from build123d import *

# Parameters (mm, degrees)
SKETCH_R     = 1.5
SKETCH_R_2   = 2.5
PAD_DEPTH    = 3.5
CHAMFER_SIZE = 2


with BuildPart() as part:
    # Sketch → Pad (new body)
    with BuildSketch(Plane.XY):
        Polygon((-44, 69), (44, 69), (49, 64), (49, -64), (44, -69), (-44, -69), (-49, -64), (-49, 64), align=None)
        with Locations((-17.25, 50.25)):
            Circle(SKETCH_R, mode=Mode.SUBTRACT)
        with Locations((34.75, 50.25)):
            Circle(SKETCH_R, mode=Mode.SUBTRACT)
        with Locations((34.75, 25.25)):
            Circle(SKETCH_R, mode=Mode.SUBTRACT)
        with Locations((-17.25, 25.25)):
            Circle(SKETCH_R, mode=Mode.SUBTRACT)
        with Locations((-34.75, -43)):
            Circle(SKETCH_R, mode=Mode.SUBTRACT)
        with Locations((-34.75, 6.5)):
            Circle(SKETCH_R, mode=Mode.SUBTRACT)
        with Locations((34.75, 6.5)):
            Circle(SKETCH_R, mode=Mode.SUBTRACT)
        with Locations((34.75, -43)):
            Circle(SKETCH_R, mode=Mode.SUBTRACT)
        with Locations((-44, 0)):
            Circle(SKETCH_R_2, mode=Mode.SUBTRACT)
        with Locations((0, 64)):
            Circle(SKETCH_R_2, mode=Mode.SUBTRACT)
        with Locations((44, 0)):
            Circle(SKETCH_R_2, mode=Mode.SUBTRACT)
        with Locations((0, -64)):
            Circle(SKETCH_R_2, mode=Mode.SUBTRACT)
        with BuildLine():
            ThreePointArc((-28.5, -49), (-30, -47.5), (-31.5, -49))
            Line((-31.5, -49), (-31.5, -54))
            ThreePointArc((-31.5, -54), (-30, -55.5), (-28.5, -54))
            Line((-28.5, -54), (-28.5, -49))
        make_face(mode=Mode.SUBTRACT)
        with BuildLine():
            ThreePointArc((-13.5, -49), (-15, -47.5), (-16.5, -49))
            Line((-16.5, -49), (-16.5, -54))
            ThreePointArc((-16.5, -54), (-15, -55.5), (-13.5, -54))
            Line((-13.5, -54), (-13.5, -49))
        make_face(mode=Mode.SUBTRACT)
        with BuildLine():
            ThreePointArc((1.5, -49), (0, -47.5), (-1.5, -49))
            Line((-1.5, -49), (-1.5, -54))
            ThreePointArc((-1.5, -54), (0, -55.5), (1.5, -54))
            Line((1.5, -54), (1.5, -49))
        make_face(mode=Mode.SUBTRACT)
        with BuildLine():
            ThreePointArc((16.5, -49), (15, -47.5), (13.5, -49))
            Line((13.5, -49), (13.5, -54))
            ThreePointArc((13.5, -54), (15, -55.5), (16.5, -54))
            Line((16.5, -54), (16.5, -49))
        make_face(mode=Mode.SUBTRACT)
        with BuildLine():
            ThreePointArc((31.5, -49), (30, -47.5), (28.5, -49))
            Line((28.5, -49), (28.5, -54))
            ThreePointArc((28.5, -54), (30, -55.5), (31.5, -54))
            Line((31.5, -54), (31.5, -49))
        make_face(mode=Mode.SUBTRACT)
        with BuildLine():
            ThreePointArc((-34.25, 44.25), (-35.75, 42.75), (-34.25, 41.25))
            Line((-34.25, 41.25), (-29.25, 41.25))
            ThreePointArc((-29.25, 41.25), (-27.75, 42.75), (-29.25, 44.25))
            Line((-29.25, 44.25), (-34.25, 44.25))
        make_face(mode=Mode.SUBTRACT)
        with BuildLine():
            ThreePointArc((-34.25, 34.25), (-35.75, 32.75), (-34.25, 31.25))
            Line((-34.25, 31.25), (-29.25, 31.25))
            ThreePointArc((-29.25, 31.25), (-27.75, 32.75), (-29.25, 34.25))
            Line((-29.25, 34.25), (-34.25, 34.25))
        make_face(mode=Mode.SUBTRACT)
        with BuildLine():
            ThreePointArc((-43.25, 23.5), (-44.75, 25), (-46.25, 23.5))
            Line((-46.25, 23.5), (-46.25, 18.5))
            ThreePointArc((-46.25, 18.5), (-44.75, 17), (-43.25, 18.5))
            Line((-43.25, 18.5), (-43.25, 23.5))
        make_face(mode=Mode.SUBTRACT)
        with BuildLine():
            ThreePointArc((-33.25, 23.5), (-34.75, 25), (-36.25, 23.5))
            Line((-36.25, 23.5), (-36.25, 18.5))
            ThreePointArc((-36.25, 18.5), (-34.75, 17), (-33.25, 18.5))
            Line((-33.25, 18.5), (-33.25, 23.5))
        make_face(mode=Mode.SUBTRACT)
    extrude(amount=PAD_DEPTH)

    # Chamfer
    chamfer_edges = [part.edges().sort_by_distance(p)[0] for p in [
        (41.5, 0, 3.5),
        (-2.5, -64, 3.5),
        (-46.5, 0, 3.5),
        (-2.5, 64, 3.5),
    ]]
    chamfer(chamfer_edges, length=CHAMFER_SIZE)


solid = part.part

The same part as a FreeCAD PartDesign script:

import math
import FreeCAD as App
import Part
import Sketcher
from FreeCAD import Vector


def edges_at(feature, points):
    """Names of the edges that pass closest to the given points."""
    edges = feature.Shape.Edges
    near = lambda p: min(range(len(edges)), key=lambda i: edges[i].distToShape(Part.Vertex(*p))[0])
    return sorted({f"Edge{near(p) + 1}" for p in points})


def add_polygon(sketch, points):
    """Adds a closed chain of lines whose ends are joined by coincident constraints."""
    first, n = sketch.GeometryCount, len(points)
    for a, b in zip(points, points[1:] + points[:1]):
        sketch.addGeometry(Part.LineSegment(App.Vector(*a, 0), App.Vector(*b, 0)), False)
    for i in range(n):
        sketch.addConstraint(Sketcher.Constraint("Coincident", first + i, 2, first + (i + 1) % n, 1))

doc = App.newDocument("Part")
body = doc.addObject("PartDesign::Body", "Body")

# Sketch on XY plane
sketch1 = body.newObject("Sketcher::SketchObject", "Sketch")
sketch1.AttachmentSupport = (doc.getObject("XY_Plane"), [""])
sketch1.MapMode = "FlatFace"
add_polygon(sketch1, [(44, 69), (-44, 69), (-49, 64), (-49, -64), (-44, -69), (44, -69), (49, -64), (49, 64)])  # lines 0-7
sketch1.addGeometry(Part.LineSegment(Vector(31.5, -49, 0), Vector(31.5, -54, 0)), False)  # 8
sketch1.addGeometry(Part.ArcOfCircle(Part.Circle(Vector(30, -54, 0), Vector(0, 0, 1), 1.5), math.radians(180), math.radians(360)), False)  # 9
sketch1.addGeometry(Part.LineSegment(Vector(28.5, -54, 0), Vector(28.5, -49, 0)), False)  # 10
sketch1.addGeometry(Part.ArcOfCircle(Part.Circle(Vector(30, -49, 0), Vector(0, 0, 1), 1.5), math.radians(0), math.radians(180)), False)  # 11
sketch1.addGeometry(Part.Circle(Vector(34.8, -43, 0), Vector(0, 0, 1), 1.5), False)  # 12
sketch1.addGeometry(Part.LineSegment(Vector(16.5, -49, 0), Vector(16.5, -54, 0)), False)  # 13
sketch1.addGeometry(Part.ArcOfCircle(Part.Circle(Vector(15, -54, 0), Vector(0, 0, 1), 1.5), math.radians(180), math.radians(360)), False)  # 14
sketch1.addGeometry(Part.LineSegment(Vector(13.5, -54, 0), Vector(13.5, -49, 0)), False)  # 15
sketch1.addGeometry(Part.ArcOfCircle(Part.Circle(Vector(15, -49, 0), Vector(0, 0, 1), 1.5), math.radians(0), math.radians(180)), False)  # 16
sketch1.addGeometry(Part.Circle(Vector(0, -64, 0), Vector(0, 0, 1), 2.5), False)  # 17
sketch1.addGeometry(Part.LineSegment(Vector(1.5, -49, 0), Vector(1.5, -54, 0)), False)  # 18
sketch1.addGeometry(Part.ArcOfCircle(Part.Circle(Vector(0, -54, 0), Vector(0, 0, 1), 1.5), math.radians(180), math.radians(360)), False)  # 19
sketch1.addGeometry(Part.LineSegment(Vector(-1.5, -54, 0), Vector(-1.5, -49, 0)), False)  # 20
sketch1.addGeometry(Part.ArcOfCircle(Part.Circle(Vector(0, -49, 0), Vector(0, 0, 1), 1.5), math.radians(0), math.radians(180)), False)  # 21
sketch1.addGeometry(Part.LineSegment(Vector(-13.5, -49, 0), Vector(-13.5, -54, 0)), False)  # 22
sketch1.addGeometry(Part.ArcOfCircle(Part.Circle(Vector(-15, -54, 0), Vector(0, 0, 1), 1.5), math.radians(180), math.radians(360)), False)  # 23
sketch1.addGeometry(Part.LineSegment(Vector(-16.5, -54, 0), Vector(-16.5, -49, 0)), False)  # 24
sketch1.addGeometry(Part.ArcOfCircle(Part.Circle(Vector(-15, -49, 0), Vector(0, 0, 1), 1.5), math.radians(0), math.radians(180)), False)  # 25
sketch1.addGeometry(Part.LineSegment(Vector(-28.5, -49, 0), Vector(-28.5, -54, 0)), False)  # 26
sketch1.addGeometry(Part.ArcOfCircle(Part.Circle(Vector(-30, -54, 0), Vector(0, 0, 1), 1.5), math.radians(180), math.radians(360)), False)  # 27
sketch1.addGeometry(Part.LineSegment(Vector(-31.5, -54, 0), Vector(-31.5, -49, 0)), False)  # 28
sketch1.addGeometry(Part.ArcOfCircle(Part.Circle(Vector(-30, -49, 0), Vector(0, 0, 1), 1.5), math.radians(0), math.radians(180)), False)  # 29
sketch1.addGeometry(Part.Circle(Vector(-34.8, -43, 0), Vector(0, 0, 1), 1.5), False)  # 30
sketch1.addGeometry(Part.Circle(Vector(44, 0, 0), Vector(0, 0, 1), 2.5), False)  # 31
sketch1.addGeometry(Part.Circle(Vector(34.8, 6.5, 0), Vector(0, 0, 1), 1.5), False)  # 32
sketch1.addGeometry(Part.Circle(Vector(34.8, 25.2, 0), Vector(0, 0, 1), 1.5), False)  # 33
sketch1.addGeometry(Part.Circle(Vector(34.8, 50.2, 0), Vector(0, 0, 1), 1.5), False)  # 34
sketch1.addGeometry(Part.Circle(Vector(-17.2, 25.2, 0), Vector(0, 0, 1), 1.5), False)  # 35
sketch1.addGeometry(Part.Circle(Vector(-34.8, 6.5, 0), Vector(0, 0, 1), 1.5), False)  # 36
sketch1.addGeometry(Part.Circle(Vector(-44, 0, 0), Vector(0, 0, 1), 2.5), False)  # 37
sketch1.addGeometry(Part.LineSegment(Vector(-33.2, 23.5, 0), Vector(-33.2, 18.5, 0)), False)  # 38
sketch1.addGeometry(Part.ArcOfCircle(Part.Circle(Vector(-34.8, 18.5, 0), Vector(0, 0, 1), 1.5), math.radians(180), math.radians(360)), False)  # 39
sketch1.addGeometry(Part.LineSegment(Vector(-36.2, 18.5, 0), Vector(-36.2, 23.5, 0)), False)  # 40
sketch1.addGeometry(Part.ArcOfCircle(Part.Circle(Vector(-34.8, 23.5, 0), Vector(0, 0, 1), 1.5), math.radians(0), math.radians(180)), False)  # 41
sketch1.addGeometry(Part.LineSegment(Vector(-34.2, 34.2, 0), Vector(-29.2, 34.2, 0)), False)  # 42
sketch1.addGeometry(Part.ArcOfCircle(Part.Circle(Vector(-29.2, 32.8, 0), Vector(0, 0, 1), 1.5), math.radians(-90), math.radians(90)), False)  # 43
sketch1.addGeometry(Part.LineSegment(Vector(-29.2, 31.2, 0), Vector(-34.2, 31.2, 0)), False)  # 44
sketch1.addGeometry(Part.ArcOfCircle(Part.Circle(Vector(-34.2, 32.8, 0), Vector(0, 0, 1), 1.5), math.radians(90), math.radians(270)), False)  # 45
sketch1.addGeometry(Part.LineSegment(Vector(-43.2, 23.5, 0), Vector(-43.2, 18.5, 0)), False)  # 46
sketch1.addGeometry(Part.ArcOfCircle(Part.Circle(Vector(-44.8, 18.5, 0), Vector(0, 0, 1), 1.5), math.radians(180), math.radians(360)), False)  # 47
sketch1.addGeometry(Part.LineSegment(Vector(-46.2, 18.5, 0), Vector(-46.2, 23.5, 0)), False)  # 48
sketch1.addGeometry(Part.ArcOfCircle(Part.Circle(Vector(-44.8, 23.5, 0), Vector(0, 0, 1), 1.5), math.radians(0), math.radians(180)), False)  # 49
sketch1.addGeometry(Part.Circle(Vector(0, 64, 0), Vector(0, 0, 1), 2.5), False)  # 50
sketch1.addGeometry(Part.Circle(Vector(-17.2, 50.2, 0), Vector(0, 0, 1), 1.5), False)  # 51
sketch1.addGeometry(Part.LineSegment(Vector(-34.2, 44.2, 0), Vector(-29.2, 44.2, 0)), False)  # 52
sketch1.addGeometry(Part.ArcOfCircle(Part.Circle(Vector(-29.2, 42.8, 0), Vector(0, 0, 1), 1.5), math.radians(-90), math.radians(90)), False)  # 53
sketch1.addGeometry(Part.LineSegment(Vector(-29.2, 41.2, 0), Vector(-34.2, 41.2, 0)), False)  # 54
sketch1.addGeometry(Part.ArcOfCircle(Part.Circle(Vector(-34.2, 42.8, 0), Vector(0, 0, 1), 1.5), math.radians(90), math.radians(270)), False)  # 55
sketch1.addConstraint([
    Sketcher.Constraint("Tangent", 8, 2, 9, 2),
    Sketcher.Constraint("Tangent", 9, 1, 10, 1),
    Sketcher.Constraint("Tangent", 10, 2, 11, 2),
    Sketcher.Constraint("Tangent", 11, 1, 8, 1),
    Sketcher.Constraint("Tangent", 13, 2, 14, 2),
    Sketcher.Constraint("Tangent", 14, 1, 15, 1),
    Sketcher.Constraint("Tangent", 15, 2, 16, 2),
    Sketcher.Constraint("Tangent", 16, 1, 13, 1),
    Sketcher.Constraint("Tangent", 18, 2, 19, 2),
    Sketcher.Constraint("Tangent", 19, 1, 20, 1),
    Sketcher.Constraint("Tangent", 20, 2, 21, 2),
    Sketcher.Constraint("Tangent", 21, 1, 18, 1),
    Sketcher.Constraint("Tangent", 22, 2, 23, 2),
    Sketcher.Constraint("Tangent", 23, 1, 24, 1),
    Sketcher.Constraint("Tangent", 24, 2, 25, 2),
    Sketcher.Constraint("Tangent", 25, 1, 22, 1),
    Sketcher.Constraint("Tangent", 26, 2, 27, 2),
    Sketcher.Constraint("Tangent", 27, 1, 28, 1),
    Sketcher.Constraint("Tangent", 28, 2, 29, 2),
    Sketcher.Constraint("Tangent", 29, 1, 26, 1),
    Sketcher.Constraint("Tangent", 38, 2, 39, 2),
    Sketcher.Constraint("Tangent", 39, 1, 40, 1),
    Sketcher.Constraint("Tangent", 40, 2, 41, 2),
    Sketcher.Constraint("Tangent", 41, 1, 38, 1),
    Sketcher.Constraint("Tangent", 42, 2, 43, 2),
    Sketcher.Constraint("Tangent", 43, 1, 44, 1),
    Sketcher.Constraint("Tangent", 44, 2, 45, 2),
    Sketcher.Constraint("Tangent", 45, 1, 42, 1),
    Sketcher.Constraint("Tangent", 46, 2, 47, 2),
    Sketcher.Constraint("Tangent", 47, 1, 48, 1),
    Sketcher.Constraint("Tangent", 48, 2, 49, 2),
    Sketcher.Constraint("Tangent", 49, 1, 46, 1),
    Sketcher.Constraint("Tangent", 52, 2, 53, 2),
    Sketcher.Constraint("Tangent", 53, 1, 54, 1),
    Sketcher.Constraint("Tangent", 54, 2, 55, 2),
    Sketcher.Constraint("Tangent", 55, 1, 52, 1),
    Sketcher.Constraint("Horizontal", 0),
    Sketcher.Constraint("Vertical", 2),
    Sketcher.Constraint("Horizontal", 4),
    Sketcher.Constraint("Vertical", 6),
    Sketcher.Constraint("Vertical", 8),
    Sketcher.Constraint("Vertical", 10),
    Sketcher.Constraint("Vertical", 13),
    Sketcher.Constraint("Vertical", 15),
    Sketcher.Constraint("Vertical", 18),
    Sketcher.Constraint("Vertical", 20),
    Sketcher.Constraint("Vertical", 22),
    Sketcher.Constraint("Vertical", 24),
    Sketcher.Constraint("Vertical", 26),
    Sketcher.Constraint("Vertical", 28),
    Sketcher.Constraint("Vertical", 38),
    Sketcher.Constraint("Vertical", 40),
    Sketcher.Constraint("Horizontal", 42),
    Sketcher.Constraint("Horizontal", 44),
    Sketcher.Constraint("Vertical", 46),
    Sketcher.Constraint("Vertical", 48),
    Sketcher.Constraint("Horizontal", 52),
    Sketcher.Constraint("Horizontal", 54),
    Sketcher.Constraint("Equal", 11, 12),
    Sketcher.Constraint("Equal", 12, 14),
    Sketcher.Constraint("Equal", 16, 19),
    Sketcher.Constraint("Equal", 21, 23),
    Sketcher.Constraint("Equal", 25, 27),
    Sketcher.Constraint("Equal", 29, 30),
    Sketcher.Constraint("Equal", 17, 31),
    Sketcher.Constraint("Equal", 30, 32),
    Sketcher.Constraint("Equal", 32, 33),
    Sketcher.Constraint("Equal", 33, 34),
    Sketcher.Constraint("Equal", 34, 35),
    Sketcher.Constraint("Equal", 35, 36),
    Sketcher.Constraint("Equal", 31, 37),
    Sketcher.Constraint("Equal", 36, 39),
    Sketcher.Constraint("Equal", 41, 43),
    Sketcher.Constraint("Equal", 45, 47),
    Sketcher.Constraint("Equal", 37, 50),
    Sketcher.Constraint("Equal", 49, 51),
    Sketcher.Constraint("Equal", 51, 53),
    Sketcher.Constraint("Symmetric", 31, 3, 37, 3, -1, 1),
    Sketcher.Constraint("Symmetric", 17, 3, 50, 3, -1, 1),
    Sketcher.Constraint("Symmetric", 0, 2, 4, 2, -1, 1),
    Sketcher.Constraint("Symmetric", 1, 2, 5, 2, -1, 1),
    Sketcher.Constraint("Symmetric", 14, 3, 23, 3, -2),
    Sketcher.Constraint("Symmetric", 9, 3, 27, 3, -2),
    Sketcher.Constraint("Symmetric", 12, 3, 30, 3, -2),
    Sketcher.Constraint("Symmetric", 32, 3, 36, 3, -2),
    Sketcher.Constraint("PointOnObject", 17, 3, -2),
    Sketcher.Constraint("PointOnObject", 19, 3, -2),
    Sketcher.Constraint("PointOnObject", 31, 3, -1),
    Sketcher.Constraint("Perpendicular", 1, 3),
    Sketcher.Constraint("Perpendicular", 5, 7),
    Sketcher.Constraint("Horizontal", 9, 3, 14, 3),
    Sketcher.Constraint("Horizontal", 11, 3, 16, 3),
    Sketcher.Constraint("Horizontal", 14, 3, 19, 3),
    Sketcher.Constraint("Horizontal", 16, 3, 21, 3),
    Sketcher.Constraint("Horizontal", 21, 3, 25, 3),
    Sketcher.Constraint("Horizontal", 25, 3, 29, 3),
    Sketcher.Constraint("Horizontal", 33, 3, 35, 3),
    Sketcher.Constraint("Horizontal", 39, 3, 47, 3),
    Sketcher.Constraint("Horizontal", 41, 3, 49, 3),
    Sketcher.Constraint("Horizontal", 34, 3, 51, 3),
    Sketcher.Constraint("Horizontal", 50, 3, 1, 2),
    Sketcher.Constraint("Horizontal", 17, 3, 2, 2),
    Sketcher.Constraint("Horizontal", 1, 2, 6, 2),
    Sketcher.Constraint("Vertical", 12, 3, 32, 3),
    Sketcher.Constraint("Vertical", 32, 3, 33, 3),
    Sketcher.Constraint("Vertical", 33, 3, 34, 3),
    Sketcher.Constraint("Vertical", 36, 3, 39, 3),
    Sketcher.Constraint("Vertical", 35, 3, 51, 3),
    Sketcher.Constraint("Vertical", 43, 3, 53, 3),
    Sketcher.Constraint("Vertical", 45, 3, 55, 3),
    Sketcher.Constraint("Vertical", 37, 3, 0, 2),
    Sketcher.Constraint("Vertical", 0, 2, 3, 2),
    Sketcher.Constraint("Equal", 54, 8),
    Sketcher.Constraint("Equal", 28, 38),
    Sketcher.Constraint("Diameter", 12, 3.0),
    Sketcher.Constraint("Diameter", 17, 5.0),
    Sketcher.Constraint("DistanceX", 0, 2, 0, 1, 88.0),
    Sketcher.Constraint("DistanceX", 42, 1, 42, 2, 5.0),
    Sketcher.Constraint("DistanceY", 2, 2, 2, 1, 128.0),
    Sketcher.Constraint("DistanceX", -1, 1, 9, 3, 30.0),
    Sketcher.Constraint("DistanceY", 9, 3, -1, 1, 54.0),
    Sketcher.Constraint("DistanceY", 12, 3, -1, 1, 43.0),
    Sketcher.Constraint("DistanceX", -1, 1, 14, 3, 15.0),
    Sketcher.Constraint("DistanceY", -1, 1, 0, 2, 69.0),
    Sketcher.Constraint("DistanceY", -1, 1, 32, 3, 6.5),
    Sketcher.Constraint("DistanceY", -1, 1, 39, 3, 18.5),
    Sketcher.Constraint("DistanceX", -1, 1, 12, 3, 34.75),
    Sketcher.Constraint("DistanceY", -1, 1, 33, 3, 25.25),
    Sketcher.Constraint("DistanceY", -1, 1, 34, 3, 50.25),
    Sketcher.Constraint("DistanceX", 35, 3, -1, 1, 17.25),
    Sketcher.Constraint("DistanceX", 43, 3, -1, 1, 29.25),
    Sketcher.Constraint("DistanceY", -1, 1, 43, 3, 32.75),
    Sketcher.Constraint("DistanceX", 47, 3, -1, 1, 44.75),
    Sketcher.Constraint("DistanceY", -1, 1, 53, 3, 42.75),
])
pad1 = body.newObject("PartDesign::Pad", "Pad")
pad1.Profile = sketch1
pad1.Length = 3.5
doc.recompute()

chamfer = body.newObject("PartDesign::Chamfer", "Chamfer")
chamfer.Base = (pad1, edges_at(pad1, [
    (41.5, 0, 3.5),
    (-2.5, -64, 3.5),
    (-46.5, 0, 3.5),
    (-2.5, 64, 3.5),
]))
chamfer.Size = 2

doc.recompute()
